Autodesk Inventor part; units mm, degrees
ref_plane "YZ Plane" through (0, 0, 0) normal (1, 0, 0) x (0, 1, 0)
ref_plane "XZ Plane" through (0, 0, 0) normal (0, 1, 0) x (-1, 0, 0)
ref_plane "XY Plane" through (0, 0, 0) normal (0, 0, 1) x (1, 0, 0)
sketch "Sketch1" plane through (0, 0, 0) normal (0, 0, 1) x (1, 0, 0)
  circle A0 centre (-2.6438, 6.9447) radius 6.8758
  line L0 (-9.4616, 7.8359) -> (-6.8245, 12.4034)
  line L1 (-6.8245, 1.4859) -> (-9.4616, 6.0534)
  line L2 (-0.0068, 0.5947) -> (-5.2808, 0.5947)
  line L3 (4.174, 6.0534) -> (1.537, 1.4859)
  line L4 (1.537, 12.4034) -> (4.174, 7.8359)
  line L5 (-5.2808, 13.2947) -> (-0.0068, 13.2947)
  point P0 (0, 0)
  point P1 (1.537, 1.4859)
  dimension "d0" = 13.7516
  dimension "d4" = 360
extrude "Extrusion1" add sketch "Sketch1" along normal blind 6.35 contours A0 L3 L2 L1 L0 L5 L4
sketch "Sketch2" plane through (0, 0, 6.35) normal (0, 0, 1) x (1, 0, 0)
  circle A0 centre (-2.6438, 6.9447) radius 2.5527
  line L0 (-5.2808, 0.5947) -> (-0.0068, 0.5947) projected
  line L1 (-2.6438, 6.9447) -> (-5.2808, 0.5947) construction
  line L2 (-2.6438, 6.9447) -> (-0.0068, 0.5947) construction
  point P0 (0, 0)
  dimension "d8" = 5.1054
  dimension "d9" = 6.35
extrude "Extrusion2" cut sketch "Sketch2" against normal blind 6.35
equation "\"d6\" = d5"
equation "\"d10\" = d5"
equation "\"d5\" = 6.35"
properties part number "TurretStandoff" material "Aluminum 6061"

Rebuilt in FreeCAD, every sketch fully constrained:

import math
import FreeCAD as App
import Part
import Sketcher
Q = App.Units.Quantity

doc = App.newDocument("Part")
params = doc.addObject("Spreadsheet::Sheet", "Params")
for row, (alias, value) in enumerate([
    ("pad1_length", "0.25 in"),
    ("sketch2_diameter", "0.201 in"),
    ("pocket1_length", "0.25 in"),
], start=1):
    params.set(f"A{row}", alias)
    params.set(f"B{row}", "=" + value)
    params.setAlias(f"B{row}", alias)

body = doc.addObject("PartDesign::Body", "Body")

sketch1 = doc.addObject("Sketcher::SketchObject", "Sketch")
body.addObject(sketch1)
sketch1.AttachmentSupport = (doc.XY_Plane, [""])
sketch1.MapMode = "FlatFace"
sketch1.addGeometry(Part.ArcOfCircle(Part.Circle(App.Vector(-2.6, 6.9, 0), App.Vector(0, 0, 1), 6.9), math.radians(-7.45), math.radians(7.45)), False)
sketch1.addGeometry(Part.LineSegment(App.Vector(4.2, 7.8, 0), App.Vector(1.5, 12.4, 0)), False)
sketch1.addGeometry(Part.ArcOfCircle(Part.Circle(App.Vector(-2.6, 6.9, 0), App.Vector(0, 0, 1), 6.9), math.radians(52.55), math.radians(67.45)), False)
sketch1.addGeometry(Part.LineSegment(App.Vector(0, 13.3, 0), App.Vector(-5.3, 13.3, 0)), False)
sketch1.addGeometry(Part.ArcOfCircle(Part.Circle(App.Vector(-2.6, 6.9, 0), App.Vector(0, 0, 1), 6.9), math.radians(112.55), math.radians(127.45)), False)
sketch1.addGeometry(Part.LineSegment(App.Vector(-6.8, 12.4, 0), App.Vector(-9.5, 7.8, 0)), False)
sketch1.addGeometry(Part.ArcOfCircle(Part.Circle(App.Vector(-2.6, 6.9, 0), App.Vector(0, 0, 1), 6.9), math.radians(172.55), math.radians(187.45)), False)
sketch1.addGeometry(Part.LineSegment(App.Vector(-9.5, 6.1, 0), App.Vector(-6.8, 1.5, 0)), False)
sketch1.addGeometry(Part.ArcOfCircle(Part.Circle(App.Vector(-2.6, 6.9, 0), App.Vector(0, 0, 1), 6.9), math.radians(-127.45), math.radians(-112.55)), False)
sketch1.addGeometry(Part.LineSegment(App.Vector(-5.3, 0.6, 0), App.Vector(0, 0.6, 0)), False)
sketch1.addGeometry(Part.ArcOfCircle(Part.Circle(App.Vector(-2.6, 6.9, 0), App.Vector(0, 0, 1), 6.9), math.radians(-67.45), math.radians(-52.55)), False)
sketch1.addGeometry(Part.LineSegment(App.Vector(1.5, 1.5, 0), App.Vector(4.2, 6.1, 0)), False)
sketch1.addConstraint(Sketcher.Constraint("Coincident", 0, 2, 1, 1))
sketch1.addConstraint(Sketcher.Constraint("Coincident", 1, 2, 2, 1))
sketch1.addConstraint(Sketcher.Constraint("Coincident", 2, 2, 3, 1))
sketch1.addConstraint(Sketcher.Constraint("Coincident", 3, 2, 4, 1))
sketch1.addConstraint(Sketcher.Constraint("Coincident", 4, 2, 5, 1))
sketch1.addConstraint(Sketcher.Constraint("Coincident", 5, 2, 6, 1))
sketch1.addConstraint(Sketcher.Constraint("Coincident", 6, 2, 7, 1))
sketch1.addConstraint(Sketcher.Constraint("Coincident", 7, 2, 8, 1))
sketch1.addConstraint(Sketcher.Constraint("Coincident", 8, 2, 9, 1))
sketch1.addConstraint(Sketcher.Constraint("Coincident", 9, 2, 10, 1))
sketch1.addConstraint(Sketcher.Constraint("Coincident", 10, 2, 11, 1))
sketch1.addConstraint(Sketcher.Constraint("Coincident", 11, 2, 0, 1))
sketch1.addConstraint(Sketcher.Constraint("Horizontal", 3))
sketch1.addConstraint(Sketcher.Constraint("Horizontal", 9))
sketch1.addConstraint(Sketcher.Constraint("Coincident", 2, 3, 0, 3))
sketch1.addConstraint(Sketcher.Constraint("Coincident", 4, 3, 0, 3))
sketch1.addConstraint(Sketcher.Constraint("Coincident", 6, 3, 0, 3))
sketch1.addConstraint(Sketcher.Constraint("Coincident", 8, 3, 0, 3))
sketch1.addConstraint(Sketcher.Constraint("Coincident", 10, 3, 0, 3))
sketch1.addConstraint(Sketcher.Constraint("Equal", 0, 2))
sketch1.addConstraint(Sketcher.Constraint("Equal", 2, 4))
sketch1.addConstraint(Sketcher.Constraint("Equal", 4, 6))
sketch1.addConstraint(Sketcher.Constraint("Equal", 6, 8))
sketch1.addConstraint(Sketcher.Constraint("Equal", 8, 10))
sketch1.addConstraint(Sketcher.Constraint("Parallel", 1, 7))
sketch1.addConstraint(Sketcher.Constraint("Parallel", 5, 11))
sketch1.addConstraint(Sketcher.Constraint("Horizontal", 1, 2, 4, 2))
sketch1.addConstraint(Sketcher.Constraint("Horizontal", 0, 2, 5, 2))
sketch1.addConstraint(Sketcher.Constraint("Horizontal", 7, 2, 10, 2))
sketch1.addConstraint(Sketcher.Constraint("Vertical", 5, 2, 6, 2))
sketch1.addConstraint(Sketcher.Constraint("Vertical", 3, 2, 8, 2))
sketch1.addConstraint(Sketcher.Constraint("Radius", 0, Q("0.2707 in")))
sketch1.addConstraint(Sketcher.Constraint("Angle", 1, Q("119.9996 deg")))
sketch1.addConstraint(Sketcher.Constraint("DistanceY", 0, 3, 2, 2, Q("0.25 in")))
sketch1.addConstraint(Sketcher.Constraint("DistanceY", 10, 2, 0, 2, Q("0.25 in")))
sketch1.addConstraint(Sketcher.Constraint("DistanceY", -1, 1, 0, 2, Q("0.3085 in")))
sketch1.addConstraint(Sketcher.Constraint("DistanceX", -1, 1, 1, 2, Q("0.0605 in")))
pad1 = doc.addObject("PartDesign::Pad", "Pad")
body.addObject(pad1)
pad1.Profile = sketch1
pad1.setExpression("Length", "Params.pad1_length")

sketch2 = doc.addObject("Sketcher::SketchObject", "Sketch001")
body.addObject(sketch2)
sketch2.AttachmentSupport = (doc.XY_Plane, [""])
sketch2.MapMode = "FlatFace"
sketch2.AttachmentOffset = App.Placement(App.Vector(0, 0, 0.25 * 25.4), App.Rotation())
sketch2.addGeometry(Part.Circle(App.Vector(-2.6, 6.9, 0), App.Vector(0, 0, 1), 2.6), False)
sketch2.addConstraint(Sketcher.Constraint("Diameter", 0, Q("0.201 in")))
sketch2.addConstraint(Sketcher.Constraint("DistanceX", 0, 3, -1, 1, Q("2.6438 mm")))
sketch2.addConstraint(Sketcher.Constraint("DistanceY", -1, 1, 0, 3, Q("6.9447 mm")))
sketch2.setExpression("Constraints[0]", "Params.sketch2_diameter")
pocket1 = doc.addObject("PartDesign::Pocket", "Pocket")
body.addObject(pocket1)
pocket1.Profile = sketch2
pocket1.setExpression("Length", "Params.pocket1_length")

doc.recompute()
